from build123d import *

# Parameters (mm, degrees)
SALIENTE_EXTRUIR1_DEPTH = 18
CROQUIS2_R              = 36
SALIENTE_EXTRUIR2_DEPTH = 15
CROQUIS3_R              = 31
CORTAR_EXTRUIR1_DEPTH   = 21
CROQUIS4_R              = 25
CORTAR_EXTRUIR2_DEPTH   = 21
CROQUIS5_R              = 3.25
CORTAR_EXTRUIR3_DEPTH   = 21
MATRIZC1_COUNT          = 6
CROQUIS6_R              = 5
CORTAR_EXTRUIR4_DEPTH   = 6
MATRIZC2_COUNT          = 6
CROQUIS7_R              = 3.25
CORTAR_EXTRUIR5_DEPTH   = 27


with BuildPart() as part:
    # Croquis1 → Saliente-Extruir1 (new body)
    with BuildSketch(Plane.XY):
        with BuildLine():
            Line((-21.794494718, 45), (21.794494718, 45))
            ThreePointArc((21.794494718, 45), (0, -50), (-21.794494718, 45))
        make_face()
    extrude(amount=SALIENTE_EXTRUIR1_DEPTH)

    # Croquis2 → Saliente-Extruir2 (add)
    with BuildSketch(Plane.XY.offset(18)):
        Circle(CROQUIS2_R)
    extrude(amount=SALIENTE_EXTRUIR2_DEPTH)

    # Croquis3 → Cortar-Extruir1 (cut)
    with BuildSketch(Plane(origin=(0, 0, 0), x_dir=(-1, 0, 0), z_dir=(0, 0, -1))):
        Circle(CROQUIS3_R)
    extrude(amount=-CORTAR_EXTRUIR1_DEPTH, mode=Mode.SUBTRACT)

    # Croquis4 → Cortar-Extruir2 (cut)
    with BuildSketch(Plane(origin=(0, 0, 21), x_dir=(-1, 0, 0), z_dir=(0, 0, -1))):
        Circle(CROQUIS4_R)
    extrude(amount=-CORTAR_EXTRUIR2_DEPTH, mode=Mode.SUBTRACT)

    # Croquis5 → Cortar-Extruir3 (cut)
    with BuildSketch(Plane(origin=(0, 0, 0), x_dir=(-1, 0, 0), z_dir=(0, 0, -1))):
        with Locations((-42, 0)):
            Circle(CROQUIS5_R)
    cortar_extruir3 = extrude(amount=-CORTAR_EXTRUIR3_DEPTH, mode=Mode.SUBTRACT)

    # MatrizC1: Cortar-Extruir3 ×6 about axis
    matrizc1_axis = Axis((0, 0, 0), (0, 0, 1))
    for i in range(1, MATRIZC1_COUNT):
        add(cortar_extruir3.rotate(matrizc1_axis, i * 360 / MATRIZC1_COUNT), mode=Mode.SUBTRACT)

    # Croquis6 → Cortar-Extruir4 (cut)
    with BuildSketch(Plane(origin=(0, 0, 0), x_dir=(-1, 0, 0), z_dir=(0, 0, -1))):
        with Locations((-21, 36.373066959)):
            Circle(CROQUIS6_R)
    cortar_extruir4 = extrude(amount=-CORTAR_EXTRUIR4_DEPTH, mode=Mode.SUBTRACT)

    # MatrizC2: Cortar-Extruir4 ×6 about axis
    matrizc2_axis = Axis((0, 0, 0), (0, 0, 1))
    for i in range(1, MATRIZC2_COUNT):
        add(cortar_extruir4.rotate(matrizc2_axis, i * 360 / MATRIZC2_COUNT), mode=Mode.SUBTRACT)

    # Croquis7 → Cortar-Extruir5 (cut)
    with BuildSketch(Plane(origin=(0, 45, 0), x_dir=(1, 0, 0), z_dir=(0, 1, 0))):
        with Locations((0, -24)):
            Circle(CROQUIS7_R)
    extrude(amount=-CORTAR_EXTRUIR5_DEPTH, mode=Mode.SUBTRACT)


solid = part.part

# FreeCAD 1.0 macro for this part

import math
import FreeCAD as App
import Part
import Sketcher

V = App.Vector
Q = App.Units.Quantity

doc = App.newDocument("Part")
body = doc.addObject("PartDesign::Body", "Body")

# Sketch on XY plane
sketch1 = doc.addObject("Sketcher::SketchObject", "Sketch")
body.addObject(sketch1)
sketch1.AttachmentSupport = (doc.XY_Plane, [""])
sketch1.MapMode = "FlatFace"
sketch1.addGeometry([
    Part.LineSegment(V(21.794495, 45, 0), V(-21.794495, 45, 0)),
    Part.ArcOfCircle(Part.Circle(V(0, 0, 0), V(0, 0, 1), 50), math.radians(115.841933), math.radians(424.158067)),
], False)
sketch1.addConstraint([
    Sketcher.Constraint("Coincident", 0, 1, 1, 2),
    Sketcher.Constraint("Coincident", 1, 1, 0, 2),
    Sketcher.Constraint("Horizontal", 0),
    Sketcher.Constraint("Coincident", 1, 3, -1, 1),
    Sketcher.Constraint("Radius", 1, Q("50 mm")),
    Sketcher.Constraint("DistanceY", -1, 1, 0, 1, Q("45 mm")),
])
pad1 = doc.addObject("PartDesign::Pad", "Pad")
body.addObject(pad1)
pad1.Profile = sketch1
pad1.Length = 18

# Sketch on XY plane
sketch2 = doc.addObject("Sketcher::SketchObject", "Sketch001")
body.addObject(sketch2)
sketch2.AttachmentSupport = (doc.XY_Plane, [""])
sketch2.MapMode = "FlatFace"
sketch2.AttachmentOffset = App.Placement(V(0, 0, 18), App.Rotation())
sketch2.addGeometry(Part.Circle(V(0, 0, 0), V(0, 0, 1), 36), False)
sketch2.addConstraint([
    Sketcher.Constraint("Coincident", 0, 3, -1, 1),
    Sketcher.Constraint("Diameter", 0, Q("72 mm")),
])
pad2 = doc.addObject("PartDesign::Pad", "Pad001")
body.addObject(pad2)
pad2.Profile = sketch2
pad2.Length = 15

# Sketch on XY plane
sketch3 = doc.addObject("Sketcher::SketchObject", "Sketch002")
body.addObject(sketch3)
sketch3.AttachmentSupport = (doc.XY_Plane, [""])
sketch3.MapMode = "FlatFace"
sketch3.addGeometry(Part.Circle(V(0, 0, 0), V(0, 0, 1), 31), False)
sketch3.addConstraint([
    Sketcher.Constraint("Coincident", 0, 3, -1, 1),
    Sketcher.Constraint("Diameter", 0, Q("62 mm")),
])
pocket1 = doc.addObject("PartDesign::Pocket", "Pocket")
body.addObject(pocket1)
pocket1.Profile = sketch3
pocket1.Length = 21
pocket1.Reversed = True

# Sketch on XY plane
sketch4 = doc.addObject("Sketcher::SketchObject", "Sketch003")
body.addObject(sketch4)
sketch4.AttachmentSupport = (doc.XY_Plane, [""])
sketch4.MapMode = "FlatFace"
sketch4.AttachmentOffset = App.Placement(V(0, 0, 21), App.Rotation())
sketch4.addGeometry(Part.Circle(V(0, 0, 0), V(0, 0, 1), 25), False)
sketch4.addConstraint([
    Sketcher.Constraint("Coincident", 0, 3, -1, 1),
    Sketcher.Constraint("Diameter", 0, Q("50 mm")),
])
pocket2 = doc.addObject("PartDesign::Pocket", "Pocket001")
body.addObject(pocket2)
pocket2.Profile = sketch4
pocket2.Length = 21
pocket2.Reversed = True

# Sketch on XY plane
sketch5 = doc.addObject("Sketcher::SketchObject", "Sketch004")
body.addObject(sketch5)
sketch5.AttachmentSupport = (doc.XY_Plane, [""])
sketch5.MapMode = "FlatFace"
sketch5.addGeometry(Part.Circle(V(42, 0, 0), V(0, 0, 1), 3.25), False)
sketch5.addConstraint([
    Sketcher.Constraint("PointOnObject", 0, 3, -1),
    Sketcher.Constraint("Diameter", 0, Q("6.5 mm")),
    Sketcher.Constraint("DistanceX", -1, 1, 0, 3, Q("42 mm")),
])
pocket3 = doc.addObject("PartDesign::Pocket", "Pocket002")
body.addObject(pocket3)
pocket3.Profile = sketch5
pocket3.Length = 21
pocket3.Reversed = True
doc.recompute()

polarpattern = doc.addObject("PartDesign::PolarPattern", "PolarPattern")
body.addObject(polarpattern)
polarpattern.Originals = [pocket3]
polarpattern.Axis = (doc.Z_Axis, [""])
polarpattern.Angle = 360
polarpattern.Occurrences = 6
body.Tip = polarpattern

# Sketch on XY plane
sketch6 = doc.addObject("Sketcher::SketchObject", "Sketch005")
body.addObject(sketch6)
sketch6.AttachmentSupport = (doc.XY_Plane, [""])
sketch6.MapMode = "FlatFace"
sketch6.addGeometry(Part.Circle(V(21, 36.373067, 0), V(0, 0, 1), 5), False)
sketch6.addConstraint([
    Sketcher.Constraint("Diameter", 0, Q("10 mm")),
    Sketcher.Constraint("DistanceX", -1, 1, 0, 3, Q("21 mm")),
    Sketcher.Constraint("DistanceY", -1, 1, 0, 3, Q("36.373067 mm")),
])
pocket4 = doc.addObject("PartDesign::Pocket", "Pocket003")
body.addObject(pocket4)
pocket4.Profile = sketch6
pocket4.Length = 6
pocket4.Reversed = True
doc.recompute()

polarpattern2 = doc.addObject("PartDesign::PolarPattern", "PolarPattern001")
body.addObject(polarpattern2)
polarpattern2.Originals = [pocket4]
polarpattern2.Axis = (doc.Z_Axis, [""])
polarpattern2.Angle = 360
polarpattern2.Occurrences = 6
body.Tip = polarpattern2

# Sketch on XZ plane
sketch7 = doc.addObject("Sketcher::SketchObject", "Sketch006")
body.addObject(sketch7)
sketch7.AttachmentSupport = (doc.XZ_Plane, [""])
sketch7.MapMode = "FlatFace"
sketch7.AttachmentOffset = App.Placement(V(0, 0, -45), App.Rotation())
sketch7.addGeometry(Part.Circle(V(0, 24, 0), V(0, 0, 1), 3.25), False)
sketch7.addConstraint([
    Sketcher.Constraint("PointOnObject", 0, 3, -2),
    Sketcher.Constraint("Diameter", 0, Q("6.5 mm")),
    Sketcher.Constraint("DistanceY", -1, 1, 0, 3, Q("24 mm")),
])
pocket5 = doc.addObject("PartDesign::Pocket", "Pocket004")
body.addObject(pocket5)
pocket5.Profile = sketch7
pocket5.Length = 27
pocket5.Reversed = True

doc.recompute()
